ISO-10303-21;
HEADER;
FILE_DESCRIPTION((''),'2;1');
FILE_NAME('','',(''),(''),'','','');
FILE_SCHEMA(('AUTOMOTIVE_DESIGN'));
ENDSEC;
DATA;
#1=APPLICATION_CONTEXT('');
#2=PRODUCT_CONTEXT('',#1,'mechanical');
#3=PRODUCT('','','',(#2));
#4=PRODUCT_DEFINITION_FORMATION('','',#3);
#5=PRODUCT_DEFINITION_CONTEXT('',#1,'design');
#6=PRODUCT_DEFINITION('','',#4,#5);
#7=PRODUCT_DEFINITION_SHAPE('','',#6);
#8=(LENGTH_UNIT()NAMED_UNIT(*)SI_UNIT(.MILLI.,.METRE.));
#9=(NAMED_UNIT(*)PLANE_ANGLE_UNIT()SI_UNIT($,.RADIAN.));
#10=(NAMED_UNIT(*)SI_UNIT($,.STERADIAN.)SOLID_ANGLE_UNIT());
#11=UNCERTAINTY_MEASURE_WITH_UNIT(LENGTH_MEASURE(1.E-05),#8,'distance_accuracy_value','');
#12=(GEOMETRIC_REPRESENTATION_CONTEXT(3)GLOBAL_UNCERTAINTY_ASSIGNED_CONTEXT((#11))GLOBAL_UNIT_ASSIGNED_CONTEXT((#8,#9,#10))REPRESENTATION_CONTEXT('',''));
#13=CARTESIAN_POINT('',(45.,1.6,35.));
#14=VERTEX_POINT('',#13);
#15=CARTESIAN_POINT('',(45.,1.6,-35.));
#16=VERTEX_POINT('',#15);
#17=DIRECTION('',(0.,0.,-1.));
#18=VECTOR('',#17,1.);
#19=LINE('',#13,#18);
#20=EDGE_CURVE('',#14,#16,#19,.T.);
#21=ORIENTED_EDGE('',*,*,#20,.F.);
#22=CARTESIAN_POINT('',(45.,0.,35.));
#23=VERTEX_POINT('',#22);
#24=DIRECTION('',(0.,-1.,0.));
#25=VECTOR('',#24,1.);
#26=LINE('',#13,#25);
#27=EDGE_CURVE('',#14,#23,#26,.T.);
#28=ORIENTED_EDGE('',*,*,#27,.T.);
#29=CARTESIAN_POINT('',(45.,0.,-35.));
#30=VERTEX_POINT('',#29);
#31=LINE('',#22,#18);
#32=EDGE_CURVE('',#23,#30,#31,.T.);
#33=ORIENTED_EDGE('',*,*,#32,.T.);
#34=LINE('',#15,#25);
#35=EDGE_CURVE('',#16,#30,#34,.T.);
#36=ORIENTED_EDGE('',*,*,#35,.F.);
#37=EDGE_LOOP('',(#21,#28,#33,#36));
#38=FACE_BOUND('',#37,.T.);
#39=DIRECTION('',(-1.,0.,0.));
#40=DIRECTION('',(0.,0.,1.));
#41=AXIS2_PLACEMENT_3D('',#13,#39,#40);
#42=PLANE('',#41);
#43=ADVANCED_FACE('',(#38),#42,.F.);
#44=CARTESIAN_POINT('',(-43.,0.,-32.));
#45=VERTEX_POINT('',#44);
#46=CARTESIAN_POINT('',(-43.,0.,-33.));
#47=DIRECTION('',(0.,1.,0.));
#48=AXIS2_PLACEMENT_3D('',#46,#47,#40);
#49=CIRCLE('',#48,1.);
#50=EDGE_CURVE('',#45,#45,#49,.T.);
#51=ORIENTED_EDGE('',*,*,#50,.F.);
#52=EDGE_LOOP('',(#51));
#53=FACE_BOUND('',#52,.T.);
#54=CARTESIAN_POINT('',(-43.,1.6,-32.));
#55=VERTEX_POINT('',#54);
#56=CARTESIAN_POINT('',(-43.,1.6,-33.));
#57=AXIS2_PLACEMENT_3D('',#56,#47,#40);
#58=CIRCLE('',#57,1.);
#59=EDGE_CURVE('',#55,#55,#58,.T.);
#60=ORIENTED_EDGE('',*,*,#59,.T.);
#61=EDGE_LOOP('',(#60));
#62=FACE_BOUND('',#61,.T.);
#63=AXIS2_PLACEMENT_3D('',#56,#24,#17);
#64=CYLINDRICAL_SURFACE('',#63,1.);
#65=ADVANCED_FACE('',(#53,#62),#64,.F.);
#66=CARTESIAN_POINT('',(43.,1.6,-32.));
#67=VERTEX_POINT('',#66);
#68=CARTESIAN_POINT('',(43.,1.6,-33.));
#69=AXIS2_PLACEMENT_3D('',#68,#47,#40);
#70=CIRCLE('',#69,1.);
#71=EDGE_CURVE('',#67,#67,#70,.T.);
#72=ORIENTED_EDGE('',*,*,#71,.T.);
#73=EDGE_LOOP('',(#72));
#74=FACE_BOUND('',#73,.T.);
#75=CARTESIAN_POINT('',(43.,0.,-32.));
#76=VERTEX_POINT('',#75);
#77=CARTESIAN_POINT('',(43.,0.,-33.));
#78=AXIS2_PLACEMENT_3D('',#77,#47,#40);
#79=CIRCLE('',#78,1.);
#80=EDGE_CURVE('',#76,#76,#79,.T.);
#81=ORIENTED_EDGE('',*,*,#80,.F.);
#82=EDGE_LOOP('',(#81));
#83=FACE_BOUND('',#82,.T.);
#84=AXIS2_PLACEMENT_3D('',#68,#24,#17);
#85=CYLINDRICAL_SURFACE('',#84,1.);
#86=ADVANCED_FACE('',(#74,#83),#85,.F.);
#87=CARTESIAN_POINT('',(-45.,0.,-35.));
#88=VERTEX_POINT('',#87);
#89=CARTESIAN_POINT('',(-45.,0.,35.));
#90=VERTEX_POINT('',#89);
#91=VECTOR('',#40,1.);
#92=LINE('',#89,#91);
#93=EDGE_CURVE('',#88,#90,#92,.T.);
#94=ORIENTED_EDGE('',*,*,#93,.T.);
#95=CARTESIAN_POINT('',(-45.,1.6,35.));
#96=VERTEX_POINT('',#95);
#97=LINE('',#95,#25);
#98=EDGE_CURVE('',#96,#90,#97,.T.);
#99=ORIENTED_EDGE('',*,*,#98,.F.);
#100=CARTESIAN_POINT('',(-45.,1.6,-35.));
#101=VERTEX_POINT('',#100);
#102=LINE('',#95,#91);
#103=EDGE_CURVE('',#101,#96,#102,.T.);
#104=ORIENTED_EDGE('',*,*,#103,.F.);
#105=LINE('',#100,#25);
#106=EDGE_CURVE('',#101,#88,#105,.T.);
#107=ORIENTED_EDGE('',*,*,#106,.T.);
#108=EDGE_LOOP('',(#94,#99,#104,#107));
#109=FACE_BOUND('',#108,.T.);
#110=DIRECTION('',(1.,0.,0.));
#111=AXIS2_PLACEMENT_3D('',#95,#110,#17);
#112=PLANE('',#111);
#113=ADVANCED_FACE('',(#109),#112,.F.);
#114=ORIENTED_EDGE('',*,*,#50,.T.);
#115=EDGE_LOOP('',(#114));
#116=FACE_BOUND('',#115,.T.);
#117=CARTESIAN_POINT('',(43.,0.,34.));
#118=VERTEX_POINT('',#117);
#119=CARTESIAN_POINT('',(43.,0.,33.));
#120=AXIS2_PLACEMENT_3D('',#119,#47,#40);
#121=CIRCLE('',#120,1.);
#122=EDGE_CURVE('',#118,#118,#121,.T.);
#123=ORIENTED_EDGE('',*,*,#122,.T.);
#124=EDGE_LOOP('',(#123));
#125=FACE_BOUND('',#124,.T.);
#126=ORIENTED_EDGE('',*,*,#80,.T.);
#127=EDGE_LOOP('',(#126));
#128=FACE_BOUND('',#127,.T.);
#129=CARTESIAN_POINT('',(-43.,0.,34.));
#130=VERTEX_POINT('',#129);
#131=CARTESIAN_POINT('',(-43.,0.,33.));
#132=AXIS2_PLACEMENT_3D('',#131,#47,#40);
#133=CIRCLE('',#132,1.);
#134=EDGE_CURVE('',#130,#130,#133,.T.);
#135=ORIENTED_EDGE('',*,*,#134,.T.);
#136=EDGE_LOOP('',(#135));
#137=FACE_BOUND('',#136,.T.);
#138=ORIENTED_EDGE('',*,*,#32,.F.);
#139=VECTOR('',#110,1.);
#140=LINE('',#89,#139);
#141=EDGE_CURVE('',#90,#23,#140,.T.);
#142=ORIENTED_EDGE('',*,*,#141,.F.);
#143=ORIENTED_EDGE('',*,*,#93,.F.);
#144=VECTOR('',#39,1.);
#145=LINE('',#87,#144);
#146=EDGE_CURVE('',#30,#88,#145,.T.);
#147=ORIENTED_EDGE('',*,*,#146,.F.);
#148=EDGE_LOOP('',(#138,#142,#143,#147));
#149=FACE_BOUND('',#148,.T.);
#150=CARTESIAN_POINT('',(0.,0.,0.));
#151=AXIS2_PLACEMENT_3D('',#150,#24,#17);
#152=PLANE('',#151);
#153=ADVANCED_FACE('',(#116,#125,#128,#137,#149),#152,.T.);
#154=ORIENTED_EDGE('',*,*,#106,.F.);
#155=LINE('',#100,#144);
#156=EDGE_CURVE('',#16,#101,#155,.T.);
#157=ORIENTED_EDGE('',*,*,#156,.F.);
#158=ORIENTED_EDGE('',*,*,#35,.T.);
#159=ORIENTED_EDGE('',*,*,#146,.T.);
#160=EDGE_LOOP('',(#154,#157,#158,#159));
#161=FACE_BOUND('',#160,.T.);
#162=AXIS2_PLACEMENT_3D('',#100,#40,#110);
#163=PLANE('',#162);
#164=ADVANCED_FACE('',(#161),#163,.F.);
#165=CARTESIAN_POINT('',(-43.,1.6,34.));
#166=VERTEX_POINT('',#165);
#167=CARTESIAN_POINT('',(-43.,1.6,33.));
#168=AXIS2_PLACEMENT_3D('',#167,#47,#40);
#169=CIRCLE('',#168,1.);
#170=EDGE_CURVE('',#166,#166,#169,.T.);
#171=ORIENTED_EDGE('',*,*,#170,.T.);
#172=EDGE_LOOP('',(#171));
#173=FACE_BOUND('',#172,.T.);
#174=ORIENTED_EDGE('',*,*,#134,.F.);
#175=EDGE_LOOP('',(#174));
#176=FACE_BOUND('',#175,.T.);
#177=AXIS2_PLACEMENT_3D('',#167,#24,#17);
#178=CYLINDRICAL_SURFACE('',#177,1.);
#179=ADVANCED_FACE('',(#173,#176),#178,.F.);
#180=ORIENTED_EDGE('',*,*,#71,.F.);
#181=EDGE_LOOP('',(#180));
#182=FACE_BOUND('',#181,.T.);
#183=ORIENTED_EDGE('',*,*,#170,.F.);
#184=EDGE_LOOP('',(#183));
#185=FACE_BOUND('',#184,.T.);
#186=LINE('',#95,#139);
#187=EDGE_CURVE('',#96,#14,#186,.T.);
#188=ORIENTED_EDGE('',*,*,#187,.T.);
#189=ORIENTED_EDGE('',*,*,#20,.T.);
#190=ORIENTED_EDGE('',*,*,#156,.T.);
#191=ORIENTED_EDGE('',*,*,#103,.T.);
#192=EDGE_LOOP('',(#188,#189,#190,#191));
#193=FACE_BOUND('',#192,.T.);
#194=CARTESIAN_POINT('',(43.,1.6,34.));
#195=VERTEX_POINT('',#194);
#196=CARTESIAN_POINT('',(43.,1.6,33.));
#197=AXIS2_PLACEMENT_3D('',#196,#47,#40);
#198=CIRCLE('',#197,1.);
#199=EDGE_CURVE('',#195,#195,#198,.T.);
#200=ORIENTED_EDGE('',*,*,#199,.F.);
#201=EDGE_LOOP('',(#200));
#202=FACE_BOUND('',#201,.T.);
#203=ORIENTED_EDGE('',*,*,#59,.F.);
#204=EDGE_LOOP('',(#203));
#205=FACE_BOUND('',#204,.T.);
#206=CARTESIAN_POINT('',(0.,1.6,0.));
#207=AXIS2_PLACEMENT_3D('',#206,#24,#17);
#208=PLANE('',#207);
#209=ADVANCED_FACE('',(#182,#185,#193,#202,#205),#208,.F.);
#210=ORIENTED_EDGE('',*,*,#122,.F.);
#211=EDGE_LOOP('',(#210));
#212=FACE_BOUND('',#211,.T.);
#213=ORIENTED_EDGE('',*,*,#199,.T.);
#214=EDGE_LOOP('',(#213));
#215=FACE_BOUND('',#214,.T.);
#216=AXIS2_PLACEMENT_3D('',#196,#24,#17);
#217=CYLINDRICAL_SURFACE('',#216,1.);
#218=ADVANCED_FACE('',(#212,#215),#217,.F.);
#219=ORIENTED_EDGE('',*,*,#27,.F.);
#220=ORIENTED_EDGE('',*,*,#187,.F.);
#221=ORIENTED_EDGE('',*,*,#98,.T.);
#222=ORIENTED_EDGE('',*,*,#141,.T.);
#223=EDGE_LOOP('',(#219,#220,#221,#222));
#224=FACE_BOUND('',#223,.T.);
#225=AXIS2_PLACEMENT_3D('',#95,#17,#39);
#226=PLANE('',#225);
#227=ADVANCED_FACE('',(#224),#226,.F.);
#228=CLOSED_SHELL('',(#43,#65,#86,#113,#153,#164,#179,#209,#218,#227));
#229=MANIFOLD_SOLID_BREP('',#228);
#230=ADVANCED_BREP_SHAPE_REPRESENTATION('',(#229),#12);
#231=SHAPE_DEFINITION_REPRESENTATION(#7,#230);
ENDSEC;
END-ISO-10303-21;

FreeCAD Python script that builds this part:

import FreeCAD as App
import Part
import Sketcher
Q = App.Units.Quantity

doc = App.newDocument("Part")
body = doc.addObject("PartDesign::Body", "Body")

sketch1 = body.newObject("Sketcher::SketchObject", "Sketch")
sketch1.AttachmentSupport = (doc.getObject("XZ_Plane"), [""])
sketch1.MapMode = "FlatFace"
sketch1.addGeometry([
    Part.LineSegment(App.Vector(-45, -35, 0), App.Vector(-45, 35, 0)),
    Part.LineSegment(App.Vector(-45, 35, 0), App.Vector(45, 35, 0)),
    Part.LineSegment(App.Vector(45, 35, 0), App.Vector(45, -35, 0)),
    Part.LineSegment(App.Vector(45, -35, 0), App.Vector(-45, -35, 0)),
    Part.Circle(App.Vector(-43, 33, 0), App.Vector(0, 0, 1), 1),
    Part.Circle(App.Vector(43, 33, 0), App.Vector(0, 0, 1), 1),
    Part.Circle(App.Vector(-43, -33, 0), App.Vector(0, 0, 1), 1),
    Part.Circle(App.Vector(43, -33, 0), App.Vector(0, 0, 1), 1),
], False)
sketch1.addConstraint([
    Sketcher.Constraint("Coincident", 0, 2, 1, 1),
    Sketcher.Constraint("Coincident", 1, 2, 2, 1),
    Sketcher.Constraint("Coincident", 2, 2, 3, 1),
    Sketcher.Constraint("Coincident", 3, 2, 0, 1),
    Sketcher.Constraint("Vertical", 0),
    Sketcher.Constraint("Horizontal", 1),
    Sketcher.Constraint("Vertical", 2),
    Sketcher.Constraint("Horizontal", 3),
    Sketcher.Constraint("Equal", 4, 5),
    Sketcher.Constraint("Equal", 5, 6),
    Sketcher.Constraint("Equal", 6, 7),
    Sketcher.Constraint("Symmetric", 5, 3, 6, 3, -1, 1),
    Sketcher.Constraint("Symmetric", 4, 3, 7, 3, -1, 1),
    Sketcher.Constraint("Symmetric", 0, 2, 2, 2, -1, 1),
    Sketcher.Constraint("Symmetric", 4, 3, 5, 3, -2),
    Sketcher.Constraint("Diameter", 4, Q("2 mm")),
    Sketcher.Constraint("DistanceX", 1, 1, 1, 2, Q("90 mm")),
    Sketcher.Constraint("DistanceY", 0, 1, 0, 2, Q("70 mm")),
    Sketcher.Constraint("DistanceX", 4, 3, -1, 1, Q("43 mm")),
    Sketcher.Constraint("DistanceY", -1, 1, 4, 3, Q("33 mm")),
])
pad1 = body.newObject("PartDesign::Pad", "Pad")
pad1.Profile = sketch1
pad1.Length = 1.6
pad1.Reversed = True

doc.recompute()
